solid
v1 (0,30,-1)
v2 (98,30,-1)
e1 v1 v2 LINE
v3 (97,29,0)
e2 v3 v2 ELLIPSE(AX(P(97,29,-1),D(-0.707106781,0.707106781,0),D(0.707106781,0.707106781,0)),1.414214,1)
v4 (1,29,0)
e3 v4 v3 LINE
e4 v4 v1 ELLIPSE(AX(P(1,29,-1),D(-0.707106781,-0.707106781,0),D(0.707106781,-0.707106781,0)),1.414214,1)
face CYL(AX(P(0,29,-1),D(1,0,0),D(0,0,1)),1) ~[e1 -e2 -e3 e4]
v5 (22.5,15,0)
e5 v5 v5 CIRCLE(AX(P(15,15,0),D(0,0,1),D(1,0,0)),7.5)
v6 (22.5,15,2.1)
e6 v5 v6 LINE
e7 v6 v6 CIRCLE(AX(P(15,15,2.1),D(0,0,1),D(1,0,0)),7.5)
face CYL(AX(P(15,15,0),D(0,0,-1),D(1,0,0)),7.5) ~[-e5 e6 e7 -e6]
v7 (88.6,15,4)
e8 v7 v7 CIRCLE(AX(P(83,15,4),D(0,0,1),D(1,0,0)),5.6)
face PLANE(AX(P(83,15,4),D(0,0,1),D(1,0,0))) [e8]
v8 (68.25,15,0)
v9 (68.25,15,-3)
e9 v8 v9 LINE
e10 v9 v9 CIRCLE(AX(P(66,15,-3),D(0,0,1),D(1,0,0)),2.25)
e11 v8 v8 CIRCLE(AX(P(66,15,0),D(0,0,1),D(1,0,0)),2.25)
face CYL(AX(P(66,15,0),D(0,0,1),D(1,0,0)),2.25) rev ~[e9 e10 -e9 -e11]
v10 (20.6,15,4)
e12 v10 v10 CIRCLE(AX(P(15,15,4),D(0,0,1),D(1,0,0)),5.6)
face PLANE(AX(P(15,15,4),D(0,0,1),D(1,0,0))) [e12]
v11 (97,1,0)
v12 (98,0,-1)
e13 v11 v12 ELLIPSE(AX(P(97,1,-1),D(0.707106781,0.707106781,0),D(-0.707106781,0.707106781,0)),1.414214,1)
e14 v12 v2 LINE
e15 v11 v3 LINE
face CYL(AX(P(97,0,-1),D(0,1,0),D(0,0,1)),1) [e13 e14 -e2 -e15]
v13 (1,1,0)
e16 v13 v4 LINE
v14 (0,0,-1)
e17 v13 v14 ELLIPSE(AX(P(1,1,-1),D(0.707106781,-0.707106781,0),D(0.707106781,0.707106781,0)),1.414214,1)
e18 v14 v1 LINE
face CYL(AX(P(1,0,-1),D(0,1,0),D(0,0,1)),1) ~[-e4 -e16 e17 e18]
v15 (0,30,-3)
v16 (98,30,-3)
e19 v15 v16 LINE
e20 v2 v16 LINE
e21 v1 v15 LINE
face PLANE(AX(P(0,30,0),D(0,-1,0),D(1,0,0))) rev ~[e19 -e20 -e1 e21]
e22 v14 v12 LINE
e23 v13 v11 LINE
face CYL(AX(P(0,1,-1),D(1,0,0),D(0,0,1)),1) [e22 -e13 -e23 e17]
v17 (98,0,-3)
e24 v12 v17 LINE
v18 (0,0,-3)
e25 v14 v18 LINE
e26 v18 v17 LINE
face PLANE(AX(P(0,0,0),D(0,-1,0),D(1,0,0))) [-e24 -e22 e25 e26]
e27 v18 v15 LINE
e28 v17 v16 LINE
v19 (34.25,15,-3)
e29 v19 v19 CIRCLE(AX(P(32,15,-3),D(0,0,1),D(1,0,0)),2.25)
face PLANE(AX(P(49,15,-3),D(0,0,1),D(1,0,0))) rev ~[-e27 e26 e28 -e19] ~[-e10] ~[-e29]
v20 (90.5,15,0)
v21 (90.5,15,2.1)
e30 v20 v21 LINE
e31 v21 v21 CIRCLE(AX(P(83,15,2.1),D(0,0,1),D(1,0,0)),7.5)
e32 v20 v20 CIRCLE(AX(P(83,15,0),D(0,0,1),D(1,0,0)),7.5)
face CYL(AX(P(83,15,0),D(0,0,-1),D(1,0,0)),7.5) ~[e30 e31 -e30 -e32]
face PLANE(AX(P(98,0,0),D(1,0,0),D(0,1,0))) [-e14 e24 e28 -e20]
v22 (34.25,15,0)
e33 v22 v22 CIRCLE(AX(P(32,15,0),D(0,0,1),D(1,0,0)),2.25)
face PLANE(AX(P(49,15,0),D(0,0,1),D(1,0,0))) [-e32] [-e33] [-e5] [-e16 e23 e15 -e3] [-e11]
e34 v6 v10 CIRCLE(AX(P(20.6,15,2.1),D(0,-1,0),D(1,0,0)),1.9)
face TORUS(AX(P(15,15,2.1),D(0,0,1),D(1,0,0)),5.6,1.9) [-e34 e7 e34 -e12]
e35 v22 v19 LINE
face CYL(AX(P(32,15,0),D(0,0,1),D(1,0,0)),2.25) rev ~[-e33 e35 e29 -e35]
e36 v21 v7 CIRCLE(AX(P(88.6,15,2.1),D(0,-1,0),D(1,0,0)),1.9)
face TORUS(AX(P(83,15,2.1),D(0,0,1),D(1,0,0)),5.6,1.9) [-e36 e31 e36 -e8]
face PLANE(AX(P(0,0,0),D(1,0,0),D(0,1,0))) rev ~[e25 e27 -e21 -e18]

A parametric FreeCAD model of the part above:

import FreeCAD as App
import Part
import Sketcher
from FreeCAD import Vector


def edges_at(feature, points):
    """Names of the edges that pass closest to the given points."""
    edges = feature.Shape.Edges
    near = lambda p: min(range(len(edges)), key=lambda i: edges[i].distToShape(Part.Vertex(*p))[0])
    return sorted({f"Edge{near(p) + 1}" for p in points})

doc = App.newDocument("Part")
body = doc.addObject("PartDesign::Body", "Body")

# Sketch on XY plane
sketch1 = doc.addObject("Sketcher::SketchObject", "Sketch")
body.addObject(sketch1)
sketch1.AttachmentSupport = (doc.XY_Plane, [""])
sketch1.MapMode = "FlatFace"
sketch1.addGeometry([
    Part.LineSegment(Vector(0, 30, 0), Vector(0, 0, 0)),  # 0
    Part.LineSegment(Vector(0, 0, 0), Vector(98, 0, 0)),  # 1
    Part.LineSegment(Vector(98, 0, 0), Vector(98, 30, 0)),  # 2
    Part.LineSegment(Vector(98, 30, 0), Vector(0, 30, 0)),  # 3
    Part.Circle(Vector(32, 15, 0), Vector(0, 0, 1), 2.25),  # 4
    Part.Circle(Vector(66, 15, 0), Vector(0, 0, 1), 2.25),  # 5
], False)
sketch1.addConstraint([
    Sketcher.Constraint("Coincident", 0, 2, 1, 1),
    Sketcher.Constraint("Coincident", 1, 2, 2, 1),
    Sketcher.Constraint("Coincident", 2, 2, 3, 1),
    Sketcher.Constraint("Coincident", 3, 2, 0, 1),
    Sketcher.Constraint("Vertical", 0),
    Sketcher.Constraint("Horizontal", 1),
    Sketcher.Constraint("Vertical", 2),
    Sketcher.Constraint("Horizontal", 3),
    Sketcher.Constraint("Coincident", 0, 2, -1, 1),
    Sketcher.Constraint("Equal", 4, 5),
    Sketcher.Constraint("Horizontal", 4, 3, 5, 3),
    Sketcher.Constraint("Diameter", 4, 4.5),
    Sketcher.Constraint("DistanceX", 1, 1, 1, 2, 98.0),
    Sketcher.Constraint("DistanceY", 0, 2, 0, 1, 30.0),
    Sketcher.Constraint("DistanceX", -1, 1, 4, 3, 32.0),
    Sketcher.Constraint("DistanceY", -1, 1, 4, 3, 15.0),
    Sketcher.Constraint("DistanceX", -1, 1, 5, 3, 66.0),
])
pad1 = doc.addObject("PartDesign::Pad", "Pad")
body.addObject(pad1)
pad1.Profile = sketch1
pad1.Length = 3
pad1.Reversed = True

# Sketch on XY plane
sketch2 = doc.addObject("Sketcher::SketchObject", "Sketch001")
body.addObject(sketch2)
sketch2.AttachmentSupport = (doc.XY_Plane, [""])
sketch2.MapMode = "FlatFace"
sketch2.addGeometry([
    Part.Circle(Vector(15, 15, 0), Vector(0, 0, 1), 7.5),
    Part.Circle(Vector(83, 15, 0), Vector(0, 0, 1), 7.5),
], False)
sketch2.addConstraint([
    Sketcher.Constraint("Equal", 0, 1),
    Sketcher.Constraint("Horizontal", 0, 3, 1, 3),
    Sketcher.Constraint("Diameter", 0, 15.0),
    Sketcher.Constraint("DistanceX", -1, 1, 0, 3, 15.0),
    Sketcher.Constraint("DistanceY", -1, 1, 0, 3, 15.0),
    Sketcher.Constraint("DistanceX", -1, 1, 1, 3, 83.0),
])
pad2 = doc.addObject("PartDesign::Pad", "Pad001")
body.addObject(pad2)
pad2.Profile = sketch2
pad2.Length = 4
doc.recompute()

fillet = doc.addObject("PartDesign::Fillet", "Fillet")
body.addObject(fillet)
fillet.Base = (pad2, edges_at(pad2, [(7.5, 15, 4), (75.5, 15, 4)]))
fillet.Radius = 1.9
doc.recompute()

fillet2 = doc.addObject("PartDesign::Fillet", "Fillet001")
body.addObject(fillet2)
fillet2.Base = (fillet, edges_at(fillet, [
    (49, 30, 0),
    (0, 15, 0),
    (98, 15, 0),
    (49, 0, 0),
]))
fillet2.Radius = 1

doc.recompute()
